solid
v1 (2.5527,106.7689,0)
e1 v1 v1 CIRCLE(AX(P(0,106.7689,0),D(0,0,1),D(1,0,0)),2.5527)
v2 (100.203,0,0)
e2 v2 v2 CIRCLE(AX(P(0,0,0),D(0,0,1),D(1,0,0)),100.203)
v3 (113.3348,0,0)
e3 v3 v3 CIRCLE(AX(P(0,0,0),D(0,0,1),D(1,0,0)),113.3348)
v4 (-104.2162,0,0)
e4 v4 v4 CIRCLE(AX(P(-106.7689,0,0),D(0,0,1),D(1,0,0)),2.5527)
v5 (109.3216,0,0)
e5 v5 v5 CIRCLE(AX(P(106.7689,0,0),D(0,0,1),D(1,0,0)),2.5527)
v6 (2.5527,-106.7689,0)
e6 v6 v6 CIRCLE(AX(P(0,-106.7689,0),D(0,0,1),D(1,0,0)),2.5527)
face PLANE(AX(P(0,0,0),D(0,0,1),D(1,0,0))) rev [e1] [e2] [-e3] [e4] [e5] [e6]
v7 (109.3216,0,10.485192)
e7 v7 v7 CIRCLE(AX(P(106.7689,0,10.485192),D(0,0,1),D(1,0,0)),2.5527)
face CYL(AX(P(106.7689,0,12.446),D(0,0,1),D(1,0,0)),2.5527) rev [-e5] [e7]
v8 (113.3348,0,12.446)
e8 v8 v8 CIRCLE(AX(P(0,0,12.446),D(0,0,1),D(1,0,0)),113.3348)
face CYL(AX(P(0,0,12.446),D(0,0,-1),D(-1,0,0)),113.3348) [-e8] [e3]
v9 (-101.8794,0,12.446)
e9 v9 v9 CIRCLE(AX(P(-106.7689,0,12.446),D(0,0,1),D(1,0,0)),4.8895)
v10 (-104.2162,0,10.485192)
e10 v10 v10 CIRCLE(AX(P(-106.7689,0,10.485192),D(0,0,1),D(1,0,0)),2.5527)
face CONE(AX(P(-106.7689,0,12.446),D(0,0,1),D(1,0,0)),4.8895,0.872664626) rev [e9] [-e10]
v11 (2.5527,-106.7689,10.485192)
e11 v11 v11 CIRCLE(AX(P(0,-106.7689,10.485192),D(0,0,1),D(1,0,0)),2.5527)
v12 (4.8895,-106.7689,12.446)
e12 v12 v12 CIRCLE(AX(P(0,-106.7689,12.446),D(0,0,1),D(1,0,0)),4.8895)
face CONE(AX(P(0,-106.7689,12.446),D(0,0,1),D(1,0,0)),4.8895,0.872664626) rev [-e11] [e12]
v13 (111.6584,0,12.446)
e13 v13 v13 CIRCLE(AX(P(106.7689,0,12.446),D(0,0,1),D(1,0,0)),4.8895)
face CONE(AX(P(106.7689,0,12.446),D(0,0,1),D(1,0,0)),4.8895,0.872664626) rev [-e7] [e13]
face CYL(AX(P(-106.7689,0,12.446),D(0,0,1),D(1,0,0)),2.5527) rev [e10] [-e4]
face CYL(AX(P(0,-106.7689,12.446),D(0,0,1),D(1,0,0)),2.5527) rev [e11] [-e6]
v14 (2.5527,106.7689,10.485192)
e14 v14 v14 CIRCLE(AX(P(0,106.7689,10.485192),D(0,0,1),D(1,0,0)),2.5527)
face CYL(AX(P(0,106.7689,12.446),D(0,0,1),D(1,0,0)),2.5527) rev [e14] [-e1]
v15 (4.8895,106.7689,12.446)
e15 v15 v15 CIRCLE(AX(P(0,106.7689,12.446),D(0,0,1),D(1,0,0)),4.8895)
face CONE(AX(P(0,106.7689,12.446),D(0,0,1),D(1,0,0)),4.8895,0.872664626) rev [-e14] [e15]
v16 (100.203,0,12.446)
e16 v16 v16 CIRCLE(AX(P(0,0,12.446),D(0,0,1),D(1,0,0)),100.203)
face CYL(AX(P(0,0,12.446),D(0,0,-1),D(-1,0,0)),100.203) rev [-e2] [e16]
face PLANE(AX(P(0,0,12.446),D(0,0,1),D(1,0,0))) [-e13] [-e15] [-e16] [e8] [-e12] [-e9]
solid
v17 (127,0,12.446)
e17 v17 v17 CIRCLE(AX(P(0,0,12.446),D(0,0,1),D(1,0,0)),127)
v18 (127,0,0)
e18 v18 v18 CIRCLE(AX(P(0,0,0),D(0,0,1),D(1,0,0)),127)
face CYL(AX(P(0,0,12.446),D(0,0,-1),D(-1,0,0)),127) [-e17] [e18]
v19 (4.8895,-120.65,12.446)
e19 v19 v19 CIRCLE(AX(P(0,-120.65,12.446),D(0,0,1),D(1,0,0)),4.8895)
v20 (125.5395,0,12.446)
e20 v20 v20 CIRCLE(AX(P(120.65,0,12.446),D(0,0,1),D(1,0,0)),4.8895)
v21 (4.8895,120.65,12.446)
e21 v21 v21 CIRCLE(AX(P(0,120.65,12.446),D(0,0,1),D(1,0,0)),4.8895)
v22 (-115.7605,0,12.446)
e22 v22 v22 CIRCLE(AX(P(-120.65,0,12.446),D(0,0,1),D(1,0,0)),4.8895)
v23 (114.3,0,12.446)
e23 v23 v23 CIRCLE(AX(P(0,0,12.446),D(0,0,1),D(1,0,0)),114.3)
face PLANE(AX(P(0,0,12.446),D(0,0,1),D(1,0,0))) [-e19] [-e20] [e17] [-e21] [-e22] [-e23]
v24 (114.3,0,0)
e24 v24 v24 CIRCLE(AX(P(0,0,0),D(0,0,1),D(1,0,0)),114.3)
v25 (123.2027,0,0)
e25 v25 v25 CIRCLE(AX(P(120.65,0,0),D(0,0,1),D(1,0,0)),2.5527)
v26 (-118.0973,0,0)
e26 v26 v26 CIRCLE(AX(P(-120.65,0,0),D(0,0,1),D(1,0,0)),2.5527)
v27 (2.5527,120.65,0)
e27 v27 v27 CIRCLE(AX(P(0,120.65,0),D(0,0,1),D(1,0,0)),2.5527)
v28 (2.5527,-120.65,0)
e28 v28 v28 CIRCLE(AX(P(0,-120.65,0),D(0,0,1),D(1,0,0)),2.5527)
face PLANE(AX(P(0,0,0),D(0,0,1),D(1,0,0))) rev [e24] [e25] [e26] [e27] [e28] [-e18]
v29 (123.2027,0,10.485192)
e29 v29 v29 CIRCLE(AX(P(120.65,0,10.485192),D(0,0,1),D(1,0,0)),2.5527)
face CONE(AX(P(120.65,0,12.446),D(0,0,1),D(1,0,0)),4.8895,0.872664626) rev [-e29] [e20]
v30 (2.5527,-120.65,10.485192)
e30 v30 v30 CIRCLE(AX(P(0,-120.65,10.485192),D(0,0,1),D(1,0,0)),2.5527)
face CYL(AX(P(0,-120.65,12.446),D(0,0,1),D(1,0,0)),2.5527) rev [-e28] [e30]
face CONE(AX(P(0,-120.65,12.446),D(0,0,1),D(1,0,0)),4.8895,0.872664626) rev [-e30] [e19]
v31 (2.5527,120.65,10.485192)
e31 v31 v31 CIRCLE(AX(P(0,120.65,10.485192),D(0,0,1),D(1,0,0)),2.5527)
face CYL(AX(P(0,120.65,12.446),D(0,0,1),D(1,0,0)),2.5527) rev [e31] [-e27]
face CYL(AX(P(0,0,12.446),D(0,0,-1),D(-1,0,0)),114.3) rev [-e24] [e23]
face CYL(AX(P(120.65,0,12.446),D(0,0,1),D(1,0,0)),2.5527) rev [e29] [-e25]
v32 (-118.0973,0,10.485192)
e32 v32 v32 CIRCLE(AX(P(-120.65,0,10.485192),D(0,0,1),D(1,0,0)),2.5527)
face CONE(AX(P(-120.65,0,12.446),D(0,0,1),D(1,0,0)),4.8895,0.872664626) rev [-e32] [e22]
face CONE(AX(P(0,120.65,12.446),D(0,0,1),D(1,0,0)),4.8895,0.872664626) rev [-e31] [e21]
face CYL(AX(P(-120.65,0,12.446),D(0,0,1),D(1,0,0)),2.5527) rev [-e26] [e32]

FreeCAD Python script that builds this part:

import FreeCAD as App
import Part
import Sketcher
Q = App.Units.Quantity

doc = App.newDocument("Part")
body = doc.addObject("PartDesign::Body", "Body")

sketch1 = body.newObject("Sketcher::SketchObject", "Sketch")
sketch1.AttachmentSupport = (doc.getObject("XY_Plane"), [""])
sketch1.MapMode = "FlatFace"
sketch1.addGeometry([
    Part.Circle(App.Vector(0, 0, 0), App.Vector(0, 0, 1), 113),
    Part.Circle(App.Vector(0, 0, 0), App.Vector(0, 0, 1), 100),
], False)
sketch1.addConstraint([
    Sketcher.Constraint("Coincident", 0, 3, -1, 1),
    Sketcher.Constraint("Coincident", 1, 3, -1, 1),
    Sketcher.Constraint("Diameter", 1, Q("7.89 in")),
    Sketcher.Constraint("Diameter", 0, Q("8.924 in")),
])
pad1 = body.newObject("PartDesign::Pad", "Pad")
pad1.Profile = sketch1
pad1.Length = Q("0.49 in")

sketch2 = body.newObject("Sketcher::SketchObject", "Sketch001")
sketch2.AttachmentSupport = (doc.getObject("YZ_Plane"), [""])
sketch2.MapMode = "FlatFace"
sketch2.addGeometry([
    Part.LineSegment(App.Vector(-106.8, 0, 0), App.Vector(-106.8, 12.4, 0)),
    Part.LineSegment(App.Vector(-106.8, 12.4, 0), App.Vector(-111.7, 12.4, 0)),
    Part.LineSegment(App.Vector(-111.7, 12.4, 0), App.Vector(-109.3, 10.5, 0)),
    Part.LineSegment(App.Vector(-109.3, 10.5, 0), App.Vector(-109.3, 0, 0)),
    Part.LineSegment(App.Vector(-109.3, 0, 0), App.Vector(-106.8, 0, 0)),
], False)
sketch2.addGeometry(Part.LineSegment(App.Vector(-106.8, 12.4, 0), App.Vector(-106.8, 0, 0)), True)
sketch2.addConstraint([
    Sketcher.Constraint("Coincident", 0, 2, 1, 1),
    Sketcher.Constraint("Coincident", 1, 2, 2, 1),
    Sketcher.Constraint("Coincident", 2, 2, 3, 1),
    Sketcher.Constraint("Coincident", 3, 2, 4, 1),
    Sketcher.Constraint("Coincident", 4, 2, 0, 1),
    Sketcher.Constraint("Vertical", 0),
    Sketcher.Constraint("Horizontal", 1),
    Sketcher.Constraint("Vertical", 3),
    Sketcher.Constraint("Horizontal", 4),
    Sketcher.Constraint("Vertical", 5),
    Sketcher.Constraint("Coincident", 5, 1, 0, 2),
    Sketcher.Constraint("PointOnObject", 3, 2, -1),
    Sketcher.Constraint("PointOnObject", 5, 2, -1),
    Sketcher.Constraint("Angle", 2, Q("-40 deg")),
    Sketcher.Constraint("DistanceY", 0, 1, 0, 2, Q("0.49 in")),
    Sketcher.Constraint("DistanceX", 1, 2, 1, 1, Q("0.1925 in")),
    Sketcher.Constraint("DistanceX", 4, 1, 4, 2, Q("0.1005 in")),
    Sketcher.Constraint("DistanceX", 1, 2, -1, 1, Q("4.396 in")),
])
groove = body.newObject("PartDesign::Groove", "Groove")
groove.Profile = sketch2
groove.ReferenceAxis = (sketch2, ["Axis0"])
groove.Angle = 360
doc.recompute()

datumline = body.newObject("PartDesign::Line", "DatumLine")
datumline.Placement = App.Placement(App.Vector(0, 0, 0), App.Rotation(App.Vector(0, 0, 1), App.Vector(-0.707106781, 0.707106781, 0)))
linearpattern = body.newObject("PartDesign::LinearPattern", "LinearPattern")
linearpattern.Originals = [groove]
linearpattern.Direction = (datumline, [""])
linearpattern.Mode = "offset"
linearpattern.Offset = 150.994026
linearpattern.Occurrences = 2
body.Tip = linearpattern
doc.recompute()

linearpattern2 = body.newObject("PartDesign::LinearPattern", "LinearPattern001")
linearpattern2.Originals = [groove]
linearpattern2.Direction = (doc.getObject("Y_Axis"), [""])
linearpattern2.Mode = "offset"
linearpattern2.Offset = Q("8.407 in")
linearpattern2.Occurrences = 2
body.Tip = linearpattern2
doc.recompute()

datumline2 = body.newObject("PartDesign::Line", "DatumLine001")
datumline2.Placement = App.Placement(App.Vector(0, 0, 0), App.Rotation(App.Vector(0, 0, 1), App.Vector(0.707106781, 0.707106781, 0)))
linearpattern3 = body.newObject("PartDesign::LinearPattern", "LinearPattern002")
linearpattern3.Originals = [groove]
linearpattern3.Direction = (datumline2, [""])
linearpattern3.Mode = "offset"
linearpattern3.Offset = 150.994026
linearpattern3.Occurrences = 2
body.Tip = linearpattern3
body2 = doc.addObject("PartDesign::Body", "Body001")

sketch3 = body2.newObject("Sketcher::SketchObject", "Sketch002")
sketch3.AttachmentSupport = (doc.getObject("XY_Plane001"), [""])
sketch3.MapMode = "FlatFace"
sketch3.addGeometry([
    Part.Circle(App.Vector(0, 0, 0), App.Vector(0, 0, 1), 127),
    Part.Circle(App.Vector(0, 0, 0), App.Vector(0, 0, 1), 114),
], False)
sketch3.addConstraint([
    Sketcher.Constraint("Coincident", 0, 3, -1, 1),
    Sketcher.Constraint("Coincident", 1, 3, -1, 1),
    Sketcher.Constraint("Diameter", 0, Q("10 in")),
    Sketcher.Constraint("Diameter", 1, Q("9 in")),
])
pad2 = body2.newObject("PartDesign::Pad", "Pad001")
pad2.Profile = sketch3
pad2.Length = Q("0.49 in")

sketch4 = body2.newObject("Sketcher::SketchObject", "Sketch003")
sketch4.AttachmentSupport = (doc.getObject("YZ_Plane001"), [""])
sketch4.MapMode = "FlatFace"
sketch4.addGeometry([
    Part.LineSegment(App.Vector(-120.7, 0, 0), App.Vector(-120.7, 12.4, 0)),
    Part.LineSegment(App.Vector(-120.7, 12.4, 0), App.Vector(-125.5, 12.4, 0)),
    Part.LineSegment(App.Vector(-125.5, 12.4, 0), App.Vector(-123.2, 10.5, 0)),
    Part.LineSegment(App.Vector(-123.2, 10.5, 0), App.Vector(-123.2, 0, 0)),
    Part.LineSegment(App.Vector(-123.2, 0, 0), App.Vector(-120.7, 0, 0)),
], False)
sketch4.addGeometry(Part.LineSegment(App.Vector(-120.7, 12.4, 0), App.Vector(-120.7, 0, 0)), True)
sketch4.addConstraint([
    Sketcher.Constraint("Coincident", 0, 2, 1, 1),
    Sketcher.Constraint("Coincident", 1, 2, 2, 1),
    Sketcher.Constraint("Coincident", 2, 2, 3, 1),
    Sketcher.Constraint("Coincident", 3, 2, 4, 1),
    Sketcher.Constraint("Coincident", 4, 2, 0, 1),
    Sketcher.Constraint("Vertical", 0),
    Sketcher.Constraint("Horizontal", 1),
    Sketcher.Constraint("Vertical", 3),
    Sketcher.Constraint("Horizontal", 4),
    Sketcher.Constraint("Vertical", 5),
    Sketcher.Constraint("Coincident", 5, 1, 0, 2),
    Sketcher.Constraint("PointOnObject", 3, 2, -1),
    Sketcher.Constraint("PointOnObject", 5, 2, -1),
    Sketcher.Constraint("Angle", 2, Q("-40 deg")),
    Sketcher.Constraint("DistanceY", 0, 1, 0, 2, Q("0.49 in")),
    Sketcher.Constraint("DistanceX", 0, 2, -1, 1, Q("4.75 in")),
    Sketcher.Constraint("DistanceX", 1, 2, 1, 1, Q("0.1925 in")),
    Sketcher.Constraint("DistanceX", 4, 1, 4, 2, Q("0.1005 in")),
])
groove2 = body2.newObject("PartDesign::Groove", "Groove001")
groove2.Profile = sketch4
groove2.ReferenceAxis = (sketch4, ["Axis0"])
groove2.Angle = 360
doc.recompute()

datumline3 = body2.newObject("PartDesign::Line", "DatumLine002")
datumline3.Placement = App.Placement(App.Vector(0, 0, 0), App.Rotation(App.Vector(0, 0, 1), App.Vector(-0.707106781, 0.707106781, 0)))
linearpattern4 = body2.newObject("PartDesign::LinearPattern", "LinearPattern003")
linearpattern4.Originals = [groove2]
linearpattern4.Direction = (datumline3, [""])
linearpattern4.Mode = "offset"
linearpattern4.Offset = 170.624866
linearpattern4.Occurrences = 2
body2.Tip = linearpattern4
doc.recompute()

linearpattern5 = body2.newObject("PartDesign::LinearPattern", "LinearPattern004")
linearpattern5.Originals = [groove2]
linearpattern5.Direction = (doc.getObject("Y_Axis001"), [""])
linearpattern5.Mode = "offset"
linearpattern5.Offset = Q("9.5 in")
linearpattern5.Occurrences = 2
body2.Tip = linearpattern5
doc.recompute()

datumline4 = body2.newObject("PartDesign::Line", "DatumLine003")
datumline4.Placement = App.Placement(App.Vector(0, 0, 0), App.Rotation(App.Vector(0, 0, 1), App.Vector(0.707106781, 0.707106781, 0)))
linearpattern6 = body2.newObject("PartDesign::LinearPattern", "LinearPattern005")
linearpattern6.Originals = [groove2]
linearpattern6.Direction = (datumline4, [""])
linearpattern6.Mode = "offset"
linearpattern6.Offset = 170.624866
linearpattern6.Occurrences = 2
body2.Tip = linearpattern6

doc.recompute()
